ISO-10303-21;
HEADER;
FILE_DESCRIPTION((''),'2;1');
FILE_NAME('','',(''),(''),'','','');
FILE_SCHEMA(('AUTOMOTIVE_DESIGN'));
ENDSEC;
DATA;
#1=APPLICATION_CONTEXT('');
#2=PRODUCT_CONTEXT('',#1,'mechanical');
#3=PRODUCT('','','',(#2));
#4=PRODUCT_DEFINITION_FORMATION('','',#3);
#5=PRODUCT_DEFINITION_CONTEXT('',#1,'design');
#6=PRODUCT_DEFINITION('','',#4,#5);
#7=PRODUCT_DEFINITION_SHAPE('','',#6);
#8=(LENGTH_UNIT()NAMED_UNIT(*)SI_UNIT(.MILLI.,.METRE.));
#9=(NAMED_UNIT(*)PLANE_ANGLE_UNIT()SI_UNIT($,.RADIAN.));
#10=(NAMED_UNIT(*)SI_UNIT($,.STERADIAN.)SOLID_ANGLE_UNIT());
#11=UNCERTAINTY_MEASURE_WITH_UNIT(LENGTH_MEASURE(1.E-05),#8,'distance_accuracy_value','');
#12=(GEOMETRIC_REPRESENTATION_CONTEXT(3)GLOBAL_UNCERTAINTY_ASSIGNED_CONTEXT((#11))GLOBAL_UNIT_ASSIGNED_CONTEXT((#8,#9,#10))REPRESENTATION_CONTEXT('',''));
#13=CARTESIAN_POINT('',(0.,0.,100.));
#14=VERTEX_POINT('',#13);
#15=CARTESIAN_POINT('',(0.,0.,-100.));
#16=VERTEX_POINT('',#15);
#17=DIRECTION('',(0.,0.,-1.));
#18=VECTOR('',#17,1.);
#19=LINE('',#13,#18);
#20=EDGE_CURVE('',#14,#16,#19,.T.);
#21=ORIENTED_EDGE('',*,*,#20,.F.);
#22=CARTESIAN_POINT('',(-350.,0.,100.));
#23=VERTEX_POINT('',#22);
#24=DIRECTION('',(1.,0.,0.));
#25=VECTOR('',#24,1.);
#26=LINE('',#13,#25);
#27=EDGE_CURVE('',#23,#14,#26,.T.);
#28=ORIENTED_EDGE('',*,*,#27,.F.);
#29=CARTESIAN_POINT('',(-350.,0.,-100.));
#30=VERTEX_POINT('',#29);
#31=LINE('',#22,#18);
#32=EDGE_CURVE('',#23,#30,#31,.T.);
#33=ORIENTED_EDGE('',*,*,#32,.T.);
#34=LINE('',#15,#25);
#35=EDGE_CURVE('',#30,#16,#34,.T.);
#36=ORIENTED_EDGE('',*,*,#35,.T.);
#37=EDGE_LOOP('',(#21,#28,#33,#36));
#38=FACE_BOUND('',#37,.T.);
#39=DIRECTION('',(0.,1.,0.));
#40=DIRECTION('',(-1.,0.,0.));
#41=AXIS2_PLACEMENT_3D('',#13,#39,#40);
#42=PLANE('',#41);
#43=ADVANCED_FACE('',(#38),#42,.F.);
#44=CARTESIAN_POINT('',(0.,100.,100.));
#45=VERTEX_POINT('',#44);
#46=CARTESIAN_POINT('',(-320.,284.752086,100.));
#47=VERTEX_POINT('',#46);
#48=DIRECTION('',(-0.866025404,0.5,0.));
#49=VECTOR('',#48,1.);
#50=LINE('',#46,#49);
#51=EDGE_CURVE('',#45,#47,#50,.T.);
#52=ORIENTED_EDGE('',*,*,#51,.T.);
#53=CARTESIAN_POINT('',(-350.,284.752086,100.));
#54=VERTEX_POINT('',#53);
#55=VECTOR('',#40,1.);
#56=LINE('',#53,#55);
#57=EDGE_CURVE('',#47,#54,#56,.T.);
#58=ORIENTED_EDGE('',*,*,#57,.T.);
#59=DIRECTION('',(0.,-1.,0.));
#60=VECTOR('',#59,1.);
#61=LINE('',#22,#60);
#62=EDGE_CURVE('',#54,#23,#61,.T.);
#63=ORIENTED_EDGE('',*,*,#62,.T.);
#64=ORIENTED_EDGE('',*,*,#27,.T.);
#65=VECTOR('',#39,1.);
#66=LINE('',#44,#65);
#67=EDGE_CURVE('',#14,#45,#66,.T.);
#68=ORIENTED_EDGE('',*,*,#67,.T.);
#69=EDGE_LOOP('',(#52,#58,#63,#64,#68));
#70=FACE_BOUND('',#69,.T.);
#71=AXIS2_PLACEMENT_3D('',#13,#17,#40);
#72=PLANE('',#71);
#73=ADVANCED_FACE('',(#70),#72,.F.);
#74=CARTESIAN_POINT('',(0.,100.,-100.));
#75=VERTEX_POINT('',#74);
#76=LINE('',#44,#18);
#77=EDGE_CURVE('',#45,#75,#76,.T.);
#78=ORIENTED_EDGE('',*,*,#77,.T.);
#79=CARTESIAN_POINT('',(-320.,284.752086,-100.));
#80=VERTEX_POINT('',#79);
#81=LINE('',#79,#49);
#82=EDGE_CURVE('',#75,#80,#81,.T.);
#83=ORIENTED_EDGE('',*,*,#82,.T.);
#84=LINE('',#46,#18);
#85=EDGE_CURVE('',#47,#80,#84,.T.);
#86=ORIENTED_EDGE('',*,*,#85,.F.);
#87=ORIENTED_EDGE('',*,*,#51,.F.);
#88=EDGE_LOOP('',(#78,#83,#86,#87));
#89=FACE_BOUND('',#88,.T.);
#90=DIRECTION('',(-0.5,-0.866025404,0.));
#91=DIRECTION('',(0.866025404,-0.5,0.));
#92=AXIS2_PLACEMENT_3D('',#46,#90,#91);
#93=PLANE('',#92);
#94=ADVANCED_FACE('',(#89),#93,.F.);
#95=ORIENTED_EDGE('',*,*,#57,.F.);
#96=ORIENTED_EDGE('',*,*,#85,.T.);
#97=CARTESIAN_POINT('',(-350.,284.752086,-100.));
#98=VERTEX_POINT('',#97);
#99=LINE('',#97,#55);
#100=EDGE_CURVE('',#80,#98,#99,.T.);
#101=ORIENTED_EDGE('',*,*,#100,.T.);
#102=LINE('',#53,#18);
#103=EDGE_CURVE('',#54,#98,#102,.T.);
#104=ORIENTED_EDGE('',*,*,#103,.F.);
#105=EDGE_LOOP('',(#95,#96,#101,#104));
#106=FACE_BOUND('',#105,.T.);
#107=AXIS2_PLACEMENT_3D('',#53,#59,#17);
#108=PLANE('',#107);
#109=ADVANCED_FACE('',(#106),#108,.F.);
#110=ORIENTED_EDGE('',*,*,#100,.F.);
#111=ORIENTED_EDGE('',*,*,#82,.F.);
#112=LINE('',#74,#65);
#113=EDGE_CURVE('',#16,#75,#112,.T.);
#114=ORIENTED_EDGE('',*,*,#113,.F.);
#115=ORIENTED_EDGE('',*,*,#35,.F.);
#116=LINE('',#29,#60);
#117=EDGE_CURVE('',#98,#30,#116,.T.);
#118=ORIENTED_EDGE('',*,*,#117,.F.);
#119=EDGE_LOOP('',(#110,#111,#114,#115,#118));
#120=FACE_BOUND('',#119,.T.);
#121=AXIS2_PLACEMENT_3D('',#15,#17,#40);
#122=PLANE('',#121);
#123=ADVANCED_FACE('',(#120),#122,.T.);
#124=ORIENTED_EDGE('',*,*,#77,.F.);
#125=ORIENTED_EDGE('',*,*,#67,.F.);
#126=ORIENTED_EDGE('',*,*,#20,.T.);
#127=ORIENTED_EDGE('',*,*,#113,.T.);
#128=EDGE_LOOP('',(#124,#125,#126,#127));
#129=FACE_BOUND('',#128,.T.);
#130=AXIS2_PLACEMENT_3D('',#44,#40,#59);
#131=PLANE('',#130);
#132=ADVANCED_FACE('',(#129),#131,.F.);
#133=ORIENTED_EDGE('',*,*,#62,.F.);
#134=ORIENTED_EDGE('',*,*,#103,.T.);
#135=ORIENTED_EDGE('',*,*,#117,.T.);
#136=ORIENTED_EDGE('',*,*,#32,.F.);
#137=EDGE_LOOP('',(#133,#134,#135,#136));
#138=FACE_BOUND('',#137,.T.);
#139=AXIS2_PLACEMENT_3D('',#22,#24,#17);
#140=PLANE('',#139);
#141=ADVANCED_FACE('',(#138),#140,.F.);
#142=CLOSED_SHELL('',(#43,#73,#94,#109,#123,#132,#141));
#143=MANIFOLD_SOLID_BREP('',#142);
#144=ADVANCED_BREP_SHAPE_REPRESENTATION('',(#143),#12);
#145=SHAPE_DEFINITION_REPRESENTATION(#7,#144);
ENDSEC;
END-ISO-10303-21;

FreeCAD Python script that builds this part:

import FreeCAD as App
import Part
import Sketcher

V = App.Vector
Q = App.Units.Quantity


def add_polygon(sketch, points):
    """Adds a closed chain of lines whose ends are joined by coincident constraints."""
    first, n = sketch.GeometryCount, len(points)
    for a, b in zip(points, points[1:] + points[:1]):
        sketch.addGeometry(Part.LineSegment(App.Vector(*a, 0), App.Vector(*b, 0)), False)
    for i in range(n):
        sketch.addConstraint(Sketcher.Constraint("Coincident", first + i, 2, first + (i + 1) % n, 1))

doc = App.newDocument("Part")
body = doc.addObject("PartDesign::Body", "Body")

# Sketch on XY plane
sketch1 = body.newObject("Sketcher::SketchObject", "Sketch")
sketch1.AttachmentSupport = (doc.getObject("XY_Plane"), [""])
sketch1.MapMode = "FlatFace"
add_polygon(sketch1, [(-350, 0), (0, 0), (0, 100), (-320, 284.752086), (-350, 284.752086)])  # lines 0-4
sketch1.addConstraint(Sketcher.Constraint("Horizontal", 0))
sketch1.addConstraint(Sketcher.Constraint("Vertical", 1))
sketch1.addConstraint(Sketcher.Constraint("Horizontal", 3))
sketch1.addConstraint(Sketcher.Constraint("Vertical", 4))
sketch1.addConstraint(Sketcher.Constraint("Coincident", 0, 2, -1, 1))
sketch1.addConstraint(Sketcher.Constraint("DistanceX", 0, 1, 0, 2, Q("350 mm")))
sketch1.addConstraint(Sketcher.Constraint("DistanceX", 3, 2, 3, 1, Q("30 mm")))
sketch1.addConstraint(Sketcher.Constraint("DistanceY", 1, 1, 1, 2, Q("100 mm")))
sketch1.addConstraint(Sketcher.Constraint("Angle", 2, Q("150 deg")))
pad1 = body.newObject("PartDesign::Pad", "Pad")
pad1.Profile = sketch1
pad1.Length = 200
pad1.Midplane = True

doc.recompute()
